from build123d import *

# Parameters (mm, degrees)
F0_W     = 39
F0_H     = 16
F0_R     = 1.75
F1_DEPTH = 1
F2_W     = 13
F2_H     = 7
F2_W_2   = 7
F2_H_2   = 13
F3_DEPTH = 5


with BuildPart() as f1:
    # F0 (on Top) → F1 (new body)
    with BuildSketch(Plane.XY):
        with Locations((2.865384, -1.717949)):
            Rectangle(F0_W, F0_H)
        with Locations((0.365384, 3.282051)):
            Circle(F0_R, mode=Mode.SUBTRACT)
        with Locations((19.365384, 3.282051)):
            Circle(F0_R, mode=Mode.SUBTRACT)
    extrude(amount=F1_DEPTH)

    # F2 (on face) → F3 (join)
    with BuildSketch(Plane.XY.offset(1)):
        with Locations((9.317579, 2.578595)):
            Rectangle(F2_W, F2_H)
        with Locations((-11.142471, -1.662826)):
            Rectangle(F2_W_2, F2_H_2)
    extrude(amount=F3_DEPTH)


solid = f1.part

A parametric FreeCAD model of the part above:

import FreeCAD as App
import Part
import Sketcher


def add_polygon(sketch, points):
    """Adds a closed chain of lines whose ends are joined by coincident constraints."""
    first, n = sketch.GeometryCount, len(points)
    for a, b in zip(points, points[1:] + points[:1]):
        sketch.addGeometry(Part.LineSegment(App.Vector(*a, 0), App.Vector(*b, 0)), False)
    for i in range(n):
        sketch.addConstraint(Sketcher.Constraint("Coincident", first + i, 2, first + (i + 1) % n, 1))

doc = App.newDocument("Part")
body = doc.addObject("PartDesign::Body", "Body")

sketch1 = doc.addObject("Sketcher::SketchObject", "Sketch")
body.addObject(sketch1)
sketch1.AttachmentSupport = (doc.XY_Plane, [""])
sketch1.MapMode = "FlatFace"
add_polygon(sketch1, [(-16.634616, 6.282051), (-16.634616, -9.717949), (22.365384, -9.717949), (22.365384, 6.282051)])
sketch1.addGeometry(Part.Circle(App.Vector(0.365384, 3.282051, 0), App.Vector(0, 0, 1), 1.75), False)
sketch1.addGeometry(Part.Circle(App.Vector(19.365384, 3.282051, 0), App.Vector(0, 0, 1), 1.75), False)
sketch1.addConstraint(Sketcher.Constraint("Vertical", 0))
sketch1.addConstraint(Sketcher.Constraint("Horizontal", 1))
sketch1.addConstraint(Sketcher.Constraint("Vertical", 2))
sketch1.addConstraint(Sketcher.Constraint("Horizontal", 3))
sketch1.addConstraint(Sketcher.Constraint("Equal", 4, 5))
sketch1.addConstraint(Sketcher.Constraint("Horizontal", 4, 3, 5, 3))
sketch1.addConstraint(Sketcher.Constraint("Diameter", 4, 3.5))
sketch1.addConstraint(Sketcher.Constraint("DistanceX", 1, 1, 1, 2, 39.0))
sketch1.addConstraint(Sketcher.Constraint("DistanceY", 0, 2, 0, 1, 16.0))
sketch1.addConstraint(Sketcher.Constraint("DistanceX", 4, 3, 5, 3, 19.0))
sketch1.addConstraint(Sketcher.Constraint("DistanceX", 0, 2, 4, 3, 17.0))
sketch1.addConstraint(Sketcher.Constraint("DistanceY", 0, 2, 4, 3, 13.0))
sketch1.addConstraint(Sketcher.Constraint("DistanceY", -1, 1, 4, 3, 3.282051))
sketch1.addConstraint(Sketcher.Constraint("DistanceX", -1, 1, 4, 3, 0.365384))
pad1 = doc.addObject("PartDesign::Pad", "Pad")
body.addObject(pad1)
pad1.Profile = sketch1
pad1.Length = 1

sketch2 = doc.addObject("Sketcher::SketchObject", "Sketch001")
body.addObject(sketch2)
sketch2.AttachmentSupport = (doc.XY_Plane, [""])
sketch2.MapMode = "FlatFace"
sketch2.AttachmentOffset = App.Placement(App.Vector(0, 0, 1), App.Rotation())
add_polygon(sketch2, [(2.817579, 6.078595), (2.817579, -0.921405), (15.817579, -0.921405), (15.817579, 6.078595)])
add_polygon(sketch2, [(-14.642471, 4.837174), (-14.642471, -8.162826), (-7.642471, -8.162826), (-7.642471, 4.837174)])
sketch2.addConstraint(Sketcher.Constraint("Vertical", 0))
sketch2.addConstraint(Sketcher.Constraint("Horizontal", 1))
sketch2.addConstraint(Sketcher.Constraint("Vertical", 2))
sketch2.addConstraint(Sketcher.Constraint("Horizontal", 3))
sketch2.addConstraint(Sketcher.Constraint("Vertical", 4))
sketch2.addConstraint(Sketcher.Constraint("Horizontal", 5))
sketch2.addConstraint(Sketcher.Constraint("Vertical", 6))
sketch2.addConstraint(Sketcher.Constraint("Horizontal", 7))
sketch2.addConstraint(Sketcher.Constraint("Equal", 7, 0))
sketch2.addConstraint(Sketcher.Constraint("Equal", 3, 4))
sketch2.addConstraint(Sketcher.Constraint("DistanceX", 1, 1, 1, 2, 13.0))
sketch2.addConstraint(Sketcher.Constraint("DistanceX", 5, 1, 5, 2, 7.0))
sketch2.addConstraint(Sketcher.Constraint("DistanceX", -1, 1, 0, 2, 2.817579))
sketch2.addConstraint(Sketcher.Constraint("DistanceX", 4, 2, -1, 1, 14.642471))
sketch2.addConstraint(Sketcher.Constraint("DistanceY", 4, 2, 0, 2, 7.241421))
sketch2.addConstraint(Sketcher.Constraint("DistanceY", 0, 2, -1, 1, 0.921405))
pad2 = doc.addObject("PartDesign::Pad", "Pad001")
body.addObject(pad2)
pad2.Profile = sketch2
pad2.Length = 5

doc.recompute()
